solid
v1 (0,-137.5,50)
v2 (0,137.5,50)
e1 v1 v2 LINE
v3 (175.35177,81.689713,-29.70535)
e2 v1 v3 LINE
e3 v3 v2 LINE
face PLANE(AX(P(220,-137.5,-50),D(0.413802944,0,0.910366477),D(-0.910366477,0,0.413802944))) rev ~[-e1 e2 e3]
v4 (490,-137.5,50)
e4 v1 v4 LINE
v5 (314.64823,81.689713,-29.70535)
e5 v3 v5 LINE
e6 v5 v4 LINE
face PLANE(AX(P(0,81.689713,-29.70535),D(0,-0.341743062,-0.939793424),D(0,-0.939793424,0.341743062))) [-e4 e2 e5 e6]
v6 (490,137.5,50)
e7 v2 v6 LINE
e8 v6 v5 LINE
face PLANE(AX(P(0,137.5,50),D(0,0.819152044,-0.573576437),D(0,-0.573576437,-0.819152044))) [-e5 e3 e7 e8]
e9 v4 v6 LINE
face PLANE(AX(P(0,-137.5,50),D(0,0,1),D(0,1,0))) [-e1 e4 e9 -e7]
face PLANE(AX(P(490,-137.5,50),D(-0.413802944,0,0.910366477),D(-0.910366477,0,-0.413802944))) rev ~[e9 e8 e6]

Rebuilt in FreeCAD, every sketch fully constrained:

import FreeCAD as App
import Part
import Sketcher

V = App.Vector
Q = App.Units.Quantity


def add_polygon(sketch, points):
    """Adds a closed chain of lines whose ends are joined by coincident constraints."""
    first, n = sketch.GeometryCount, len(points)
    for a, b in zip(points, points[1:] + points[:1]):
        sketch.addGeometry(Part.LineSegment(App.Vector(*a, 0), App.Vector(*b, 0)), False)
    for i in range(n):
        sketch.addConstraint(Sketcher.Constraint("Coincident", first + i, 2, first + (i + 1) % n, 1))

doc = App.newDocument("Part")
body = doc.addObject("PartDesign::Body", "Body")

# Sketch on YZ plane
sketch1 = body.newObject("Sketcher::SketchObject", "Sketch")
sketch1.AttachmentSupport = (doc.getObject("YZ_Plane"), [""])
sketch1.MapMode = "FlatFace"
add_polygon(sketch1, [(-138, 50), (-138, -50), (138, -50), (138, 50)])  # lines 0-3
sketch1.addConstraint([
    Sketcher.Constraint("Vertical", 0),
    Sketcher.Constraint("Horizontal", 1),
    Sketcher.Constraint("Vertical", 2),
    Sketcher.Constraint("Horizontal", 3),
    Sketcher.Constraint("Symmetric", 0, 2, 2, 2, -1, 1),
    Sketcher.Constraint("DistanceX", 1, 1, 1, 2, Q("275 mm")),
    Sketcher.Constraint("DistanceY", 0, 2, 0, 1, Q("100 mm")),
])
pad1 = body.newObject("PartDesign::Pad", "Pad")
pad1.Profile = sketch1
pad1.Length = 490

# Sketch on XZ plane
sketch2 = body.newObject("Sketcher::SketchObject", "Sketch001")
sketch2.AttachmentSupport = (doc.getObject("XZ_Plane"), [""])
sketch2.MapMode = "FlatFace"
sketch2.AttachmentOffset = App.Placement(V(0, 0, 137.5), App.Rotation())
add_polygon(sketch2, [(0, 50), (0, -50), (220, -50)])  # lines 0-2
add_polygon(sketch2, [(490, 50), (270, -50), (490, -50)])  # lines 3-5
sketch2.addConstraint([
    Sketcher.Constraint("Vertical", 0),
    Sketcher.Constraint("Horizontal", 1),
    Sketcher.Constraint("Horizontal", 4),
    Sketcher.Constraint("Vertical", 5),
    Sketcher.Constraint("Symmetric", 0, 2, 2, 2, -1, 1),
    Sketcher.Constraint("Horizontal", 1, 2, 3, 2),
    Sketcher.Constraint("Horizontal", 2, 2, 5, 2),
    Sketcher.Constraint("Equal", 1, 4),
    Sketcher.Constraint("DistanceX", 1, 1, 1, 2, Q("220 mm")),
    Sketcher.Constraint("DistanceY", 0, 2, 0, 1, Q("100 mm")),
    Sketcher.Constraint("DistanceX", -1, 1, 3, 2, Q("270 mm")),
])
pocket1 = body.newObject("PartDesign::Pocket", "Pocket")
pocket1.Profile = sketch2
pocket1.Type = "ThroughAll"

# Sketch on YZ plane
sketch3 = body.newObject("Sketcher::SketchObject", "Sketch002")
sketch3.AttachmentSupport = (doc.getObject("YZ_Plane"), [""])
sketch3.MapMode = "FlatFace"
add_polygon(sketch3, [(138, 50), (82, -30), (-138, 50), (-138, -50), (138, -50)])  # lines 0-4
sketch3.addConstraint([
    Sketcher.Constraint("Vertical", 2),
    Sketcher.Constraint("Horizontal", 3),
    Sketcher.Constraint("Vertical", 4),
    Sketcher.Constraint("Symmetric", 1, 2, 3, 2, -1, 1),
    Sketcher.Constraint("Horizontal", 1, 2, 4, 2),
    Sketcher.Constraint("DistanceX", 3, 1, 3, 2, Q("275 mm")),
    Sketcher.Constraint("DistanceY", 2, 2, 2, 1, Q("100 mm")),
    Sketcher.Constraint("Angle", 0, Q("-125 deg")),
    Sketcher.Constraint("Distance", 1, Q("233.231801 mm")),
])
pocket2 = body.newObject("PartDesign::Pocket", "Pocket001")
pocket2.Profile = sketch3
pocket2.Type = "ThroughAll"
pocket2.Reversed = True

doc.recompute()
